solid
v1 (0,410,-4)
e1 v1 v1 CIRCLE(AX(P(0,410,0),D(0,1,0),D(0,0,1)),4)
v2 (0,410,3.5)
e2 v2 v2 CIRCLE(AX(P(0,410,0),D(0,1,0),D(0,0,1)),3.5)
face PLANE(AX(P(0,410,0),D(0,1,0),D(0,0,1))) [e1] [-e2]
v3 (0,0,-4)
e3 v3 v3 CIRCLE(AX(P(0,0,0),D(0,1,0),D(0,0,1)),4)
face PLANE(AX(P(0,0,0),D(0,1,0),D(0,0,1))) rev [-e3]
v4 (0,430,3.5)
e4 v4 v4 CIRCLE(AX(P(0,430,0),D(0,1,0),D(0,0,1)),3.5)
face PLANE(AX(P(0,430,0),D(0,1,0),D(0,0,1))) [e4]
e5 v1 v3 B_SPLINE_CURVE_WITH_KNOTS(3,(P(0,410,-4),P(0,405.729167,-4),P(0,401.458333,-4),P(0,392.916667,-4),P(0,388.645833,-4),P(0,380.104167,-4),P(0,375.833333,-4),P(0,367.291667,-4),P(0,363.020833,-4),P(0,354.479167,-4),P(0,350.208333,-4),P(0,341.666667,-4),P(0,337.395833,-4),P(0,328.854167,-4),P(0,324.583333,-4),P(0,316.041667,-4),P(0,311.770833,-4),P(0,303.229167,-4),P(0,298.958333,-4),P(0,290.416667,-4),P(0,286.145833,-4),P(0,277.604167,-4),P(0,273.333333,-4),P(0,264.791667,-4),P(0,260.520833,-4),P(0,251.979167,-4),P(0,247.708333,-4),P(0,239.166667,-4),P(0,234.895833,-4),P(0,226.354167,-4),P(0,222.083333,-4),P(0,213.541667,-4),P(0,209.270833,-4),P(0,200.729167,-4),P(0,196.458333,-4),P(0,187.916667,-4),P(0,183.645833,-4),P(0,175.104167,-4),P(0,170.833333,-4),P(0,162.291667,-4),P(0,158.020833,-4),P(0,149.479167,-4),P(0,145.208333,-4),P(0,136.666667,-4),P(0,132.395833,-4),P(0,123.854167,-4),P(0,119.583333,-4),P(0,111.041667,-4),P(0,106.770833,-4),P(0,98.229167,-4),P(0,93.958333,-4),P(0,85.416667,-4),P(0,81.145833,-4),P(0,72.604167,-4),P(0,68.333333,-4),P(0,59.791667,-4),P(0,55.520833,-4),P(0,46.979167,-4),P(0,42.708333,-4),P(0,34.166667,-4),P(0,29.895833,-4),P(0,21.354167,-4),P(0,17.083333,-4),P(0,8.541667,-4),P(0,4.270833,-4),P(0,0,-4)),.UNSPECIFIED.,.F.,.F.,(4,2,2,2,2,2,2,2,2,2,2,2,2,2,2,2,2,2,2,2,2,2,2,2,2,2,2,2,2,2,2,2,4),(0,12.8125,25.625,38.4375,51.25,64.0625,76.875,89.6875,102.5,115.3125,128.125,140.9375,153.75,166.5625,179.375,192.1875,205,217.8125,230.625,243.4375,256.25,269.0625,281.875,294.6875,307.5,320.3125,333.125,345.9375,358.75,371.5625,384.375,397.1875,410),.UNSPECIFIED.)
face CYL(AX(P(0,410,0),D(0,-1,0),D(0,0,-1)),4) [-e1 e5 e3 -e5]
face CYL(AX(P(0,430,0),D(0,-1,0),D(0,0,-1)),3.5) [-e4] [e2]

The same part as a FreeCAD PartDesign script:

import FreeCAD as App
import Part
import Sketcher
from FreeCAD import Vector
Q = App.Units.Quantity

doc = App.newDocument("Part")
body = doc.addObject("PartDesign::Body", "Body")

# Sketch on XZ plane
sketch1 = doc.addObject("Sketcher::SketchObject", "Sketch")
body.addObject(sketch1)
sketch1.AttachmentSupport = (doc.XZ_Plane, [""])
sketch1.MapMode = "FlatFace"
sketch1.addGeometry(Part.Circle(Vector(0, 0, 0), Vector(0, 0, 1), 4), False)
sketch1.addConstraint([
    Sketcher.Constraint("Coincident", 0, 3, -1, 1),
    Sketcher.Constraint("Diameter", 0, Q("8 mm")),
])
pad1 = doc.addObject("PartDesign::Pad", "Pad")
body.addObject(pad1)
pad1.Profile = sketch1
pad1.Length = 410
pad1.Reversed = True

# Sketch on XZ plane
sketch2 = doc.addObject("Sketcher::SketchObject", "Sketch001")
body.addObject(sketch2)
sketch2.AttachmentSupport = (doc.XZ_Plane, [""])
sketch2.MapMode = "FlatFace"
sketch2.AttachmentOffset = App.Placement(Vector(0, 0, -410), App.Rotation())
sketch2.addGeometry(Part.Circle(Vector(0, 0, 0), Vector(0, 0, 1), 3.5), False)
sketch2.addConstraint([
    Sketcher.Constraint("Coincident", 0, 3, -1, 1),
    Sketcher.Constraint("Diameter", 0, Q("7 mm")),
])
pad2 = doc.addObject("PartDesign::Pad", "Pad001")
body.addObject(pad2)
pad2.Profile = sketch2
pad2.Length = 20
pad2.Reversed = True

doc.recompute()
